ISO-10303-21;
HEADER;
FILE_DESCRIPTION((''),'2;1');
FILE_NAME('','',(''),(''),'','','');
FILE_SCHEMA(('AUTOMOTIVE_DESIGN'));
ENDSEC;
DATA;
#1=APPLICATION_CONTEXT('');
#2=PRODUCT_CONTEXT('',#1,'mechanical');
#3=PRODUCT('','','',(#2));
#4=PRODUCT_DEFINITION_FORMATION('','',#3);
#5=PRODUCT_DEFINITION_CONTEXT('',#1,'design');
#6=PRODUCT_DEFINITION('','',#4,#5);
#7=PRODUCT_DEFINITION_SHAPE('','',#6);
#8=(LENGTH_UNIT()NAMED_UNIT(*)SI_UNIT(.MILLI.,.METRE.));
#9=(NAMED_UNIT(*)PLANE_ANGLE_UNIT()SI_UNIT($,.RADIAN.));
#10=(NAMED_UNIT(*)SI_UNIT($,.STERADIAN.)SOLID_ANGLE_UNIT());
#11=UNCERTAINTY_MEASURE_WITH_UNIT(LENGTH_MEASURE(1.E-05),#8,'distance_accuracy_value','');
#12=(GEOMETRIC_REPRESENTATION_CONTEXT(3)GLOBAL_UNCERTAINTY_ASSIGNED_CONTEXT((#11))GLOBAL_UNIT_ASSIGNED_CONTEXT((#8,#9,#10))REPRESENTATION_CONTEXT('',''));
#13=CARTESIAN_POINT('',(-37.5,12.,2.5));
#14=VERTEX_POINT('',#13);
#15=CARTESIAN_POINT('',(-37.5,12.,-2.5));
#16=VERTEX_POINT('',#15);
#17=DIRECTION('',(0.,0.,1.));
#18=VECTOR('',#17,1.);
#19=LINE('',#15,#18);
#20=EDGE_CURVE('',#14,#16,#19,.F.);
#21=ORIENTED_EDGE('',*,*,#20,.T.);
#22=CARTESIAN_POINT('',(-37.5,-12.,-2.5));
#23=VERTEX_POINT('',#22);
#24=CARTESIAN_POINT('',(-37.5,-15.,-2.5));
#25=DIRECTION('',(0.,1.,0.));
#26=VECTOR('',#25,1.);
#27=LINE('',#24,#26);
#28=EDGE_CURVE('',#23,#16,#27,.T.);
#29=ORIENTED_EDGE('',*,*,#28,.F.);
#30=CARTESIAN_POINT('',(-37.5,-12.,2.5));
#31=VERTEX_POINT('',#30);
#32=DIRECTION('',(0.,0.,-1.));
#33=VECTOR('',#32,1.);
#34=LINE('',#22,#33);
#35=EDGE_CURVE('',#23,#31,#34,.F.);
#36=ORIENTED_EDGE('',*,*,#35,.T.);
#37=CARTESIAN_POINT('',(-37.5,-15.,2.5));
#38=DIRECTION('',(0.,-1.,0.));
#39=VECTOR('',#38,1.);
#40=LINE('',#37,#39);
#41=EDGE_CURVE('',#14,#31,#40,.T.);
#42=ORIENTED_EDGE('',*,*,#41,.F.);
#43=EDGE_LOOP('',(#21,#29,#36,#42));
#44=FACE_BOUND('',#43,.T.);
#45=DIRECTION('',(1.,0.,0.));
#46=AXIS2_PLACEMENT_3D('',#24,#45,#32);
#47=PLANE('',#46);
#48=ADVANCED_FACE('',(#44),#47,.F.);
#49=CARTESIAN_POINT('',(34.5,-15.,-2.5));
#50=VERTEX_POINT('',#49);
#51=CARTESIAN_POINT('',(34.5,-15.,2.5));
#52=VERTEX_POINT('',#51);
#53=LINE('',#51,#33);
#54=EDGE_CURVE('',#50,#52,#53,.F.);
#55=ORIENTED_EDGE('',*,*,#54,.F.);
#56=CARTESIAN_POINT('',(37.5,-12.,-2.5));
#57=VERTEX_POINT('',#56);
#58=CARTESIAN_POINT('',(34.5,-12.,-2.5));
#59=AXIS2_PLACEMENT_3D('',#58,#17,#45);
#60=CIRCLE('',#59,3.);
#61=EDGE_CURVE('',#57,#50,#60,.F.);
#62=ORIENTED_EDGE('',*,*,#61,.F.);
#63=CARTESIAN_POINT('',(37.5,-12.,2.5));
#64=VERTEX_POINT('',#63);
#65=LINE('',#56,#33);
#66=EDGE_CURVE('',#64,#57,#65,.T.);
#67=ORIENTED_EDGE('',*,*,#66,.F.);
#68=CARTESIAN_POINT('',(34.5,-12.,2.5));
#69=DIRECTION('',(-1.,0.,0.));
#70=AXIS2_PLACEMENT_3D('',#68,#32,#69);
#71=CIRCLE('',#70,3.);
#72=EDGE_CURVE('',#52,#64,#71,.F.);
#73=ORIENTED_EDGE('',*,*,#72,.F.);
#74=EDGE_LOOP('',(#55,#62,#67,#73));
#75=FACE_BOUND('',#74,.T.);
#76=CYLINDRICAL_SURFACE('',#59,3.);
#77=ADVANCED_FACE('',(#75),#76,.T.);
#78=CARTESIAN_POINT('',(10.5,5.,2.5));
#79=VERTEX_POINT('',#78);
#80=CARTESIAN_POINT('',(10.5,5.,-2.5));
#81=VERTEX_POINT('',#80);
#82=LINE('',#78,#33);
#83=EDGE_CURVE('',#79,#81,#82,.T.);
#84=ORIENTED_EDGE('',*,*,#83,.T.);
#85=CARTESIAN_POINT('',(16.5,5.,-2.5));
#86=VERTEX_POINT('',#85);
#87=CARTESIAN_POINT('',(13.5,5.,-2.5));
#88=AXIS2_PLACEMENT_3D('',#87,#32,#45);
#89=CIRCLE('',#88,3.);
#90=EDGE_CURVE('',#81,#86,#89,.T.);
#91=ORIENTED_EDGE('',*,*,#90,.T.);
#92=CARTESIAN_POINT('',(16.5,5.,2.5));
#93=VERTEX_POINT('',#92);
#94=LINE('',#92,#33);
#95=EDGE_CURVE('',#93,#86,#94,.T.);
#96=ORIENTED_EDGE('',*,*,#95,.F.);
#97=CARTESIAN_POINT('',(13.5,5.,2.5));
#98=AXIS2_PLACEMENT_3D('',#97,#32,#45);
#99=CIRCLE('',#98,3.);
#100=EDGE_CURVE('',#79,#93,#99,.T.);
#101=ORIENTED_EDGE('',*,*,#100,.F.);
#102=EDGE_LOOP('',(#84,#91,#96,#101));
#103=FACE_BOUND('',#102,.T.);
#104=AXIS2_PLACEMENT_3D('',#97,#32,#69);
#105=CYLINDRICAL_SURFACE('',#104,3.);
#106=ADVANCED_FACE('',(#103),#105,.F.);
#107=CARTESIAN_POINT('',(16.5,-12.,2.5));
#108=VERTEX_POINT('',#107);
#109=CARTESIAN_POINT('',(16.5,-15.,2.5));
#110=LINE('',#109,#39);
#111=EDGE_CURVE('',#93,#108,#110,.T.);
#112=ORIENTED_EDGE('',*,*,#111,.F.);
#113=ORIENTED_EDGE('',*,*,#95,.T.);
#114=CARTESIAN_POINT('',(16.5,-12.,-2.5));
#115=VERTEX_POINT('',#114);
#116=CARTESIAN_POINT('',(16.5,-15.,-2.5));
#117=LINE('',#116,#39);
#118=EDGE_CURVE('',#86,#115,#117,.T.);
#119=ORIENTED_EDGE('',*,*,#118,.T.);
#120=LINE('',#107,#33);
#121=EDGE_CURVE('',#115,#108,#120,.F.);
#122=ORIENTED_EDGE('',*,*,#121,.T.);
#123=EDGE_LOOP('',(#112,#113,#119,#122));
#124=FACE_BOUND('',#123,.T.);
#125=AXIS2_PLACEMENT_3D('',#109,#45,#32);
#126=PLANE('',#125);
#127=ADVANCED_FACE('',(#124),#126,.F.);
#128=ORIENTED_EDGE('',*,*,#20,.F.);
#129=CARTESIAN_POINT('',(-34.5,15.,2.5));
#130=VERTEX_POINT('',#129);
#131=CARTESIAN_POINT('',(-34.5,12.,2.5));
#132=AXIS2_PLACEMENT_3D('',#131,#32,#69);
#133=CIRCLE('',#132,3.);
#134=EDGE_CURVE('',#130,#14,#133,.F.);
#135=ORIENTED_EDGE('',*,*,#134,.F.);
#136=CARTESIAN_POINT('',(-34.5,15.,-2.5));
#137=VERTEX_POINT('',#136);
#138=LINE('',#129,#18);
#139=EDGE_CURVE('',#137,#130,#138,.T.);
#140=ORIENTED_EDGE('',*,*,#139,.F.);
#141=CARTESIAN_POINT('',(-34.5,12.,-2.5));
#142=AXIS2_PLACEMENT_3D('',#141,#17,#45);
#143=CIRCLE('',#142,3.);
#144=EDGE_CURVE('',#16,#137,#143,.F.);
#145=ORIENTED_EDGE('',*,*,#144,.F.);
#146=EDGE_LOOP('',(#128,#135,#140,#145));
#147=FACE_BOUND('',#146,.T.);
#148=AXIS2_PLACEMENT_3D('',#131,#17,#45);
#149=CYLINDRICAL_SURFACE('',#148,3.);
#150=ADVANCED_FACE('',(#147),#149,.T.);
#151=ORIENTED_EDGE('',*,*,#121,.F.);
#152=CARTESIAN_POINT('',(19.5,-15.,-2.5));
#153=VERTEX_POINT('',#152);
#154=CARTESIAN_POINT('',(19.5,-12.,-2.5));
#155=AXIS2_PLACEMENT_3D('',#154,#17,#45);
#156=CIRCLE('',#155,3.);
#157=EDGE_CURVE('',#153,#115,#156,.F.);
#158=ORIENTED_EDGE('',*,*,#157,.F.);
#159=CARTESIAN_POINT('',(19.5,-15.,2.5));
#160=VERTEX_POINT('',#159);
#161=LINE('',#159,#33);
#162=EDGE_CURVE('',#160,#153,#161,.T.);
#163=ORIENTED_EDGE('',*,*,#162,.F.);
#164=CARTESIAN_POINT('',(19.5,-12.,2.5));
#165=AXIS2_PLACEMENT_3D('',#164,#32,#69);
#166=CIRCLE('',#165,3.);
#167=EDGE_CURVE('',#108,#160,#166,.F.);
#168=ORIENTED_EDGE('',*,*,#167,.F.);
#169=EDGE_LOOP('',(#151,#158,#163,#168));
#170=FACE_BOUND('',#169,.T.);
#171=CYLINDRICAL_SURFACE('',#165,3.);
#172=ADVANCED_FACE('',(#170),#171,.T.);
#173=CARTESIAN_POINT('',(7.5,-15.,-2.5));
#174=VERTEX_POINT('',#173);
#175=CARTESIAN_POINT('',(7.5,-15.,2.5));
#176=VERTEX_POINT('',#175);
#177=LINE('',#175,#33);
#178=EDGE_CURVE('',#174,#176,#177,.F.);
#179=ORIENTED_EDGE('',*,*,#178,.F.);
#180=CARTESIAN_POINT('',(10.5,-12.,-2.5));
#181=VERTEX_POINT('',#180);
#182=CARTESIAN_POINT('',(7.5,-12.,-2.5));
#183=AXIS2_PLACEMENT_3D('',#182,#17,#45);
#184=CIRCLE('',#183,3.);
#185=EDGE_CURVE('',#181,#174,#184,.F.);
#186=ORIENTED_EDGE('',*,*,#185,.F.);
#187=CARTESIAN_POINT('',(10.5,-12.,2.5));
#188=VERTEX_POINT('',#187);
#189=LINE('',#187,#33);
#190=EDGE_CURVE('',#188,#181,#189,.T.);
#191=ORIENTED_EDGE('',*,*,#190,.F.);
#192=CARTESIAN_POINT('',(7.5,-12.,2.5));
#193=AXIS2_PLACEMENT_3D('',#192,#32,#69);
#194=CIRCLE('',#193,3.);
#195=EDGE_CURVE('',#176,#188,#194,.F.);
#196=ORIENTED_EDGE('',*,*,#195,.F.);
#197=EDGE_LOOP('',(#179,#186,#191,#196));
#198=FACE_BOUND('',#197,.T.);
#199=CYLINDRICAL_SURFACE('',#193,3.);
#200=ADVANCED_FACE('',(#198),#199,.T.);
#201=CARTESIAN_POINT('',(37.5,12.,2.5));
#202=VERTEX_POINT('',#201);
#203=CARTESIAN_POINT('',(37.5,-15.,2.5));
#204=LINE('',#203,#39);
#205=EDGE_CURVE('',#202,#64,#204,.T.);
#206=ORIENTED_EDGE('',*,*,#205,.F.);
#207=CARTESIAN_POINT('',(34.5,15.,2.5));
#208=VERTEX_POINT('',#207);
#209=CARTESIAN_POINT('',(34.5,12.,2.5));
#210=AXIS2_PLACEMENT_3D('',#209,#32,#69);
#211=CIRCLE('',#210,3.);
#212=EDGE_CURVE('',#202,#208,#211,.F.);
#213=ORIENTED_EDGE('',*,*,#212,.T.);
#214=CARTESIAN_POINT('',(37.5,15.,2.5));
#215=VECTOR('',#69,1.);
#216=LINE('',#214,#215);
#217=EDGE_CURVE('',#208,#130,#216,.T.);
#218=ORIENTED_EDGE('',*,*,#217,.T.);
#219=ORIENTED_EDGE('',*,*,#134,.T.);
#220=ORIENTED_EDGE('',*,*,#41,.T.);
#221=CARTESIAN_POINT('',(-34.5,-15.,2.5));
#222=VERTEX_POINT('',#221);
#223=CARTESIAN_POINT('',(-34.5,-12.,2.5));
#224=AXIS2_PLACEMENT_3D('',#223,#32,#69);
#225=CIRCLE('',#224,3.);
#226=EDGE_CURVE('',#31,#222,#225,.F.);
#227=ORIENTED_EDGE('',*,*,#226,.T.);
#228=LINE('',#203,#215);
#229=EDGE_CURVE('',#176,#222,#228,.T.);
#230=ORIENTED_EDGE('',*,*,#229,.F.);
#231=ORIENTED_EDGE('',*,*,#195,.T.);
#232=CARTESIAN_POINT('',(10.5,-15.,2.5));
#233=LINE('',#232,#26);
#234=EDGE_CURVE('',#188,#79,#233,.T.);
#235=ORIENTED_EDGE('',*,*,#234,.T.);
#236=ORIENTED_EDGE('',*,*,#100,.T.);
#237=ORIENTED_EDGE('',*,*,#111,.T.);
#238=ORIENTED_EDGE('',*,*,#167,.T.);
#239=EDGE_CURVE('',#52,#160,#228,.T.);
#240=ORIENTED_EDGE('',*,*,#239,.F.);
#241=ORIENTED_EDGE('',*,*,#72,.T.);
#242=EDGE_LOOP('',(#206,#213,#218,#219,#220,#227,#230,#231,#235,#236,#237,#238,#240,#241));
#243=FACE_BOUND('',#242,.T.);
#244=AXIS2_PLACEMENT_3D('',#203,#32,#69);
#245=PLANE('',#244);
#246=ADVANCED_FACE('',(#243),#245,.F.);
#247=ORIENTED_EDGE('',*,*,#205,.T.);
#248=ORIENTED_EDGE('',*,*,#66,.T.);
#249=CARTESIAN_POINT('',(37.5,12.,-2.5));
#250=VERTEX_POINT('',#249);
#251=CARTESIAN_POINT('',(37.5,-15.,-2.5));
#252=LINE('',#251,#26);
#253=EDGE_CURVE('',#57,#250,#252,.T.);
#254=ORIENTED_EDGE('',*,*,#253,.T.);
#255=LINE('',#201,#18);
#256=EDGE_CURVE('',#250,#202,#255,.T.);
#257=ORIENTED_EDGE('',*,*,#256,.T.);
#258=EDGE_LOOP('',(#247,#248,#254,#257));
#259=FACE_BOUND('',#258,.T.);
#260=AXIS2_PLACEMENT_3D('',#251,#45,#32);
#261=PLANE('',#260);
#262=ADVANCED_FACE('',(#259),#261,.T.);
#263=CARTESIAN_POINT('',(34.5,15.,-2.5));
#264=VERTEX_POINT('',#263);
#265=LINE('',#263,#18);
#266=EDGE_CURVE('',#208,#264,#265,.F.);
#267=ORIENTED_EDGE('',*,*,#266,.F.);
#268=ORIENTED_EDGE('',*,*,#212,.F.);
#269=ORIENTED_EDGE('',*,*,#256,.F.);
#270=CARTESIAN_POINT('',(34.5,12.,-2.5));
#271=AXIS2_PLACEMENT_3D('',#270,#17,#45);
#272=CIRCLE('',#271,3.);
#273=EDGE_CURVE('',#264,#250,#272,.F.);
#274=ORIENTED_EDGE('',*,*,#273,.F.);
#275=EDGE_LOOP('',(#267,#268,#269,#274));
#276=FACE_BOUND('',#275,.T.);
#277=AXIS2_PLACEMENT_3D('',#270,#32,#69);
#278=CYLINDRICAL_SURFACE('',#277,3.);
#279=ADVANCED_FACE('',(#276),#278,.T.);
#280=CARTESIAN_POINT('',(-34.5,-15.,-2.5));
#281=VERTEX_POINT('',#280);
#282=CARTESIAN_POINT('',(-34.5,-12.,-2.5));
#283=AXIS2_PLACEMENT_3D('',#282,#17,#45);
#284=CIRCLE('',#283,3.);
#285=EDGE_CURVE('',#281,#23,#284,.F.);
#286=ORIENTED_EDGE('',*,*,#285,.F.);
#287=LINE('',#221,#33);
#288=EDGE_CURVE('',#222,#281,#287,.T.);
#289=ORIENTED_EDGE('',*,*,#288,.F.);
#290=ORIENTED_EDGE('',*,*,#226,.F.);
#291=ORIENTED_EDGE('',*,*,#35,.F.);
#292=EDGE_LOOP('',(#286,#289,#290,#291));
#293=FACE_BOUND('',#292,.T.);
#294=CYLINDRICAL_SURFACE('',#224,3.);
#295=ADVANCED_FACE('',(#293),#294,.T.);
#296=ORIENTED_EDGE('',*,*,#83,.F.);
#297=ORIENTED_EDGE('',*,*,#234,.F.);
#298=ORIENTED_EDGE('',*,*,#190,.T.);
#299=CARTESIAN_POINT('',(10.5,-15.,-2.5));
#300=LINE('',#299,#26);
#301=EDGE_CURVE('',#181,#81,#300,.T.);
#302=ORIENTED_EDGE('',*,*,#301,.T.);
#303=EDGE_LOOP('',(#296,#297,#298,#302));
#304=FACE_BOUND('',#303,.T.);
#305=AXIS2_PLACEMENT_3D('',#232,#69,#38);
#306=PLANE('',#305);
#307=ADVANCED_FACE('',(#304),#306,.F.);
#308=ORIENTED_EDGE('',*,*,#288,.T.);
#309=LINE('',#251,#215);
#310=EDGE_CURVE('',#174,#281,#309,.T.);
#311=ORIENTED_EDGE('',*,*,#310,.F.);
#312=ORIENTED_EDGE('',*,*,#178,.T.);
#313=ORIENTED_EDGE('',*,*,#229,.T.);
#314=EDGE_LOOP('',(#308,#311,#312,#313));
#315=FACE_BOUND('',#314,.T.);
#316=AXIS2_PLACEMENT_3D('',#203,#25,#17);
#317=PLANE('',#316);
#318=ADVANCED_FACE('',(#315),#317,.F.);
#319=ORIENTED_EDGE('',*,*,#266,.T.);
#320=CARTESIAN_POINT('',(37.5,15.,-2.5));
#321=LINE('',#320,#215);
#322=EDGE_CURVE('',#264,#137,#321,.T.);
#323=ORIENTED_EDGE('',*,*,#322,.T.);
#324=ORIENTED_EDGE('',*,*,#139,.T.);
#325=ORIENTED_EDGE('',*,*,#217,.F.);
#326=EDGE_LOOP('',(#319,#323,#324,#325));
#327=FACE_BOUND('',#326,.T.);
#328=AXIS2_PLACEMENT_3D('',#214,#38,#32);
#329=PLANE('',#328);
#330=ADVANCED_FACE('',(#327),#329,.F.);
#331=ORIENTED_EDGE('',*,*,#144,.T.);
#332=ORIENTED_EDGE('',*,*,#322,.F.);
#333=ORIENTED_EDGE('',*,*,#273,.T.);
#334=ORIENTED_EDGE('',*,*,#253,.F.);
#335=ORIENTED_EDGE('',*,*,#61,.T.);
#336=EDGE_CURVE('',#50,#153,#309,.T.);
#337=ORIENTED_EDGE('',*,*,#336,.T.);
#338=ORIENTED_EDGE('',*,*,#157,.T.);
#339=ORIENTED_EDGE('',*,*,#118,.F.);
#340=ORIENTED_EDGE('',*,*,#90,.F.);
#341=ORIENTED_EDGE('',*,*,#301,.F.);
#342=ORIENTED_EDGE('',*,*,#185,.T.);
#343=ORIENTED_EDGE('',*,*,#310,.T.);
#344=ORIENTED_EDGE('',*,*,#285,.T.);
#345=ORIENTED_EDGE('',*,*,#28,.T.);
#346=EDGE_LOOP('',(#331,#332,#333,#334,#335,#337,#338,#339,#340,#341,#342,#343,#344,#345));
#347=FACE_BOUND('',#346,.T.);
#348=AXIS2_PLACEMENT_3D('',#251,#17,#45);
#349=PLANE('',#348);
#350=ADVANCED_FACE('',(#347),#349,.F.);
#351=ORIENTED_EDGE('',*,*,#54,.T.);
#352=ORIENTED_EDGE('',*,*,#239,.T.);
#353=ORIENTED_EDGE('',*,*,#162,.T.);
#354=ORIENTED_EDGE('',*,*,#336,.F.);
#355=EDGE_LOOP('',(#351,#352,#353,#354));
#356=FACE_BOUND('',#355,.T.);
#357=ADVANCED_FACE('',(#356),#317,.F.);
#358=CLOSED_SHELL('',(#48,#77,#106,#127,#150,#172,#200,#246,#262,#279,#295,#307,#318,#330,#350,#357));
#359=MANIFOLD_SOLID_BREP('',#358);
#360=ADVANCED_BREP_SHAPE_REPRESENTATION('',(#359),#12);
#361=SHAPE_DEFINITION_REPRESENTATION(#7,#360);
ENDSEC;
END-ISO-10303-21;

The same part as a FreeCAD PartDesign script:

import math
import FreeCAD as App
import Part
import Sketcher
from FreeCAD import Vector
Q = App.Units.Quantity


def edges_at(feature, points):
    """Names of the edges that pass closest to the given points."""
    edges = feature.Shape.Edges
    near = lambda p: min(range(len(edges)), key=lambda i: edges[i].distToShape(Part.Vertex(*p))[0])
    return sorted({f"Edge{near(p) + 1}" for p in points})

doc = App.newDocument("Part")
params = doc.addObject("Spreadsheet::Sheet", "Params")
for row, (alias, value) in enumerate([
    ("sketch1_width", "30 mm"),
    ("sketch1_height", "5 mm"),
    ("pad1_length", "75 mm"),
    ("sketch2_radius", "3 mm"),
    ("sketch2_height", "20 mm"),
    ("fillet_radius", "3 mm"),
], start=1):
    params.set(f"A{row}", alias)
    params.set(f"B{row}", "=" + value)
    params.setAlias(f"B{row}", alias)

body = doc.addObject("PartDesign::Body", "Body")

# Sketch on YZ plane
sketch1 = body.newObject("Sketcher::SketchObject", "Sketch")
sketch1.AttachmentSupport = (doc.getObject("YZ_Plane"), [""])
sketch1.MapMode = "FlatFace"
sketch1.AttachmentOffset = App.Placement(Vector(0, 0, -37.5), App.Rotation())
sketch1.addGeometry(Part.LineSegment(Vector(-15, 2, 0), Vector(-15, -2, 0)), False)
sketch1.addGeometry(Part.LineSegment(Vector(-15, -2, 0), Vector(15, -2, 0)), False)
sketch1.addGeometry(Part.LineSegment(Vector(15, -2, 0), Vector(15, 2, 0)), False)
sketch1.addGeometry(Part.LineSegment(Vector(15, 2, 0), Vector(-15, 2, 0)), False)
sketch1.addConstraint(Sketcher.Constraint("Coincident", 0, 2, 1, 1))
sketch1.addConstraint(Sketcher.Constraint("Coincident", 1, 2, 2, 1))
sketch1.addConstraint(Sketcher.Constraint("Coincident", 2, 2, 3, 1))
sketch1.addConstraint(Sketcher.Constraint("Coincident", 3, 2, 0, 1))
sketch1.addConstraint(Sketcher.Constraint("Vertical", 0))
sketch1.addConstraint(Sketcher.Constraint("Horizontal", 1))
sketch1.addConstraint(Sketcher.Constraint("Vertical", 2))
sketch1.addConstraint(Sketcher.Constraint("Horizontal", 3))
sketch1.addConstraint(Sketcher.Constraint("Symmetric", 0, 2, 2, 2, -1, 1))
sketch1.addConstraint(Sketcher.Constraint("DistanceX", 1, 1, 1, 2, Q("30 mm")))
sketch1.addConstraint(Sketcher.Constraint("DistanceY", 0, 2, 0, 1, Q("5 mm")))
sketch1.setExpression("Constraints[9]", "Params.sketch1_width")
sketch1.setExpression("Constraints[10]", "Params.sketch1_height")
pad1 = body.newObject("PartDesign::Pad", "Pad")
pad1.Profile = sketch1
pad1.setExpression("Length", "Params.pad1_length")

# Sketch on XY plane
sketch2 = body.newObject("Sketcher::SketchObject", "Sketch001")
sketch2.AttachmentSupport = (doc.getObject("XY_Plane"), [""])
sketch2.MapMode = "FlatFace"
sketch2.AttachmentOffset = App.Placement(Vector(0, 0, -2.5), App.Rotation())
sketch2.addGeometry(Part.LineSegment(Vector(16.5, -15, 0), Vector(10.5, -15, 0)), False)
sketch2.addGeometry(Part.LineSegment(Vector(10.5, -15, 0), Vector(10.5, 5, 0)), False)
sketch2.addGeometry(Part.ArcOfCircle(Part.Circle(Vector(13.5, 5, 0), Vector(0, 0, 1), 3), math.radians(0), math.radians(180)), False)
sketch2.addGeometry(Part.LineSegment(Vector(16.5, 5, 0), Vector(16.5, -15, 0)), False)
sketch2.addConstraint(Sketcher.Constraint("Coincident", 0, 2, 1, 1))
sketch2.addConstraint(Sketcher.Constraint("Tangent", 1, 2, 2, 2))
sketch2.addConstraint(Sketcher.Constraint("Tangent", 2, 1, 3, 1))
sketch2.addConstraint(Sketcher.Constraint("Coincident", 3, 2, 0, 1))
sketch2.addConstraint(Sketcher.Constraint("Horizontal", 0))
sketch2.addConstraint(Sketcher.Constraint("Vertical", 1))
sketch2.addConstraint(Sketcher.Constraint("Vertical", 3))
sketch2.addConstraint(Sketcher.Constraint("Radius", 2, Q("3 mm")))
sketch2.addConstraint(Sketcher.Constraint("DistanceY", 1, 1, 1, 2, Q("20 mm")))
sketch2.addConstraint(Sketcher.Constraint("DistanceY", -1, 1, 2, 3, Q("5 mm")))
sketch2.addConstraint(Sketcher.Constraint("DistanceX", -1, 1, 2, 3, Q("13.5 mm")))
sketch2.setExpression("Constraints[7]", "Params.sketch2_radius")
sketch2.setExpression("Constraints[8]", "Params.sketch2_height")
pocket1 = body.newObject("PartDesign::Pocket", "Pocket")
pocket1.Profile = sketch2
pocket1.Type = "ThroughAll"
pocket1.Reversed = True
doc.recompute()

fillet = body.newObject("PartDesign::Fillet", "Fillet")
fillet.Base = (pocket1, edges_at(pocket1, [
    (37.5, 15, 0),
    (16.5, -15, 0),
    (10.5, -15, 0),
    (37.5, -15, 0),
    (-37.5, 15, 0),
    (-37.5, -15, 0),
]))
fillet.setExpression("Radius", "Params.fillet_radius")

doc.recompute()
